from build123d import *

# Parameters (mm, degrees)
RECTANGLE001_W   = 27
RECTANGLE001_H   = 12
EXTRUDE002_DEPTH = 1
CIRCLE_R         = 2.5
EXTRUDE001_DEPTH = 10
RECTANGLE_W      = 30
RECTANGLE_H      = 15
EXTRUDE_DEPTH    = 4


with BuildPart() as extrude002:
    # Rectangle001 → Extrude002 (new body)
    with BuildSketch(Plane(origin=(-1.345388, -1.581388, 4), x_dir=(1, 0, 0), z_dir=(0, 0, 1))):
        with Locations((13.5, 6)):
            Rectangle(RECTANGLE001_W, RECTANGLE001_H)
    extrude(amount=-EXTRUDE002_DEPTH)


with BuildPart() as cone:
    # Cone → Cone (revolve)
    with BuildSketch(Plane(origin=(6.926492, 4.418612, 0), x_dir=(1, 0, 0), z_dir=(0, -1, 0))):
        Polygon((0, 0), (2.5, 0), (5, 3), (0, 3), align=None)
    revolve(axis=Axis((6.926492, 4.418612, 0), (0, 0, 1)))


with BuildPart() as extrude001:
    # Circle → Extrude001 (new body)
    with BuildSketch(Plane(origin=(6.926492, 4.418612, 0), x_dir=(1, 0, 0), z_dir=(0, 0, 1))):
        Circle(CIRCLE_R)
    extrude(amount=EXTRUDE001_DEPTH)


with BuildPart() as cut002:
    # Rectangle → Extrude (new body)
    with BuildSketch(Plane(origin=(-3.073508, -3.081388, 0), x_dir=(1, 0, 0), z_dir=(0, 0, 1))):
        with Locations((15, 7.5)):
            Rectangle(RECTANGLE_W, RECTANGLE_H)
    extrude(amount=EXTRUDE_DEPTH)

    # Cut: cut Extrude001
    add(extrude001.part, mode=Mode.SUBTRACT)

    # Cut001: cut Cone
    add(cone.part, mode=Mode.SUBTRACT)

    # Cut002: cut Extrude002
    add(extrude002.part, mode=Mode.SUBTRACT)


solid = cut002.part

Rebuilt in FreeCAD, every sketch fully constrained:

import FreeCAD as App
import Part
import Sketcher
from FreeCAD import Vector


def add_polygon(sketch, points):
    """Adds a closed chain of lines whose ends are joined by coincident constraints."""
    first, n = sketch.GeometryCount, len(points)
    for a, b in zip(points, points[1:] + points[:1]):
        sketch.addGeometry(Part.LineSegment(App.Vector(*a, 0), App.Vector(*b, 0)), False)
    for i in range(n):
        sketch.addConstraint(Sketcher.Constraint("Coincident", first + i, 2, first + (i + 1) % n, 1))

doc = App.newDocument("Part")
params = doc.addObject("Spreadsheet::Sheet", "Params")
for row, (alias, value) in enumerate([
    ("sketch1_width", "27 mm"),
    ("sketch1_height", "12 mm"),
    ("pad1_length", "1 mm"),
    ("sketch2_width", "5 mm"),
    ("sketch2_height", "3 mm"),
    ("sketch2_width2", "2.5 mm"),
    ("revolution_angle", "360 deg"),
    ("sketch3_diameter", "5 mm"),
    ("pad2_length", "10 mm"),
    ("sketch4_width", "30 mm"),
    ("sketch4_height", "15 mm"),
    ("pad3_length", "4 mm"),
], start=1):
    params.set(f"A{row}", alias)
    params.set(f"B{row}", "=" + value)
    params.setAlias(f"B{row}", alias)

body = doc.addObject("PartDesign::Body", "Body")

sketch1 = body.newObject("Sketcher::SketchObject", "Sketch")
sketch1.AttachmentSupport = (doc.getObject("XY_Plane"), [""])
sketch1.MapMode = "FlatFace"
sketch1.AttachmentOffset = App.Placement(Vector(0, 0, 4), App.Rotation())
add_polygon(sketch1, [(-1, 10), (-1, -2), (26, -2), (26, 10)])
sketch1.addConstraint(Sketcher.Constraint("Vertical", 0))
sketch1.addConstraint(Sketcher.Constraint("Horizontal", 1))
sketch1.addConstraint(Sketcher.Constraint("Vertical", 2))
sketch1.addConstraint(Sketcher.Constraint("Horizontal", 3))
sketch1.addConstraint(Sketcher.Constraint("DistanceX", 1, 1, 1, 2, 27.0))
sketch1.addConstraint(Sketcher.Constraint("DistanceY", 0, 2, 0, 1, 12.0))
sketch1.addConstraint(Sketcher.Constraint("DistanceX", -1, 1, 1, 2, 25.654612))
sketch1.addConstraint(Sketcher.Constraint("DistanceY", 0, 2, -1, 1, 1.581388))
sketch1.setExpression("Constraints[8]", "Params.sketch1_width")
sketch1.setExpression("Constraints[9]", "Params.sketch1_height")
pad1 = body.newObject("PartDesign::Pad", "Pad")
pad1.Profile = sketch1
pad1.setExpression("Length", "Params.pad1_length")
pad1.Reversed = True
body2 = doc.addObject("PartDesign::Body", "Body001")

sketch2 = body2.newObject("Sketcher::SketchObject", "Sketch001")
sketch2.AttachmentSupport = (doc.getObject("XZ_Plane001"), [""])
sketch2.MapMode = "FlatFace"
sketch2.AttachmentOffset = App.Placement(Vector(0, 0, -4.418612), App.Rotation())
add_polygon(sketch2, [(6.9, 0), (9.4, 0), (11.9, 3), (6.9, 3)])
sketch2.addGeometry(Part.LineSegment(Vector(6.9, 0, 0), Vector(6.9, 3, 0)), True)
sketch2.addConstraint(Sketcher.Constraint("Horizontal", 0))
sketch2.addConstraint(Sketcher.Constraint("Horizontal", 2))
sketch2.addConstraint(Sketcher.Constraint("Vertical", 3))
sketch2.addConstraint(Sketcher.Constraint("Vertical", 4))
sketch2.addConstraint(Sketcher.Constraint("Coincident", 4, 1, 3, 2))
sketch2.addConstraint(Sketcher.Constraint("PointOnObject", 0, 2, -1))
sketch2.addConstraint(Sketcher.Constraint("Horizontal", 1, 2, 4, 2))
sketch2.addConstraint(Sketcher.Constraint("DistanceX", 2, 2, 2, 1, 5.0))
sketch2.addConstraint(Sketcher.Constraint("DistanceY", 3, 2, 3, 1, 3.0))
sketch2.addConstraint(Sketcher.Constraint("DistanceX", 0, 1, 0, 2, 2.5))
sketch2.addConstraint(Sketcher.Constraint("DistanceX", -1, 1, 2, 2, 6.926492))
sketch2.setExpression("Constraints[11]", "Params.sketch2_width")
sketch2.setExpression("Constraints[12]", "Params.sketch2_height")
sketch2.setExpression("Constraints[13]", "Params.sketch2_width2")
revolution = body2.newObject("PartDesign::Revolution", "Revolution")
revolution.Profile = sketch2
revolution.ReferenceAxis = (sketch2, ["Axis0"])
revolution.setExpression("Angle", "Params.revolution_angle")
body3 = doc.addObject("PartDesign::Body", "Body002")

sketch3 = body3.newObject("Sketcher::SketchObject", "Sketch002")
sketch3.AttachmentSupport = (doc.getObject("XY_Plane002"), [""])
sketch3.MapMode = "FlatFace"
sketch3.addGeometry(Part.Circle(Vector(6.9, 4.4, 0), Vector(0, 0, 1), 2.5), False)
sketch3.addConstraint(Sketcher.Constraint("Diameter", 0, 5.0))
sketch3.addConstraint(Sketcher.Constraint("DistanceX", -1, 1, 0, 3, 6.926492))
sketch3.addConstraint(Sketcher.Constraint("DistanceY", -1, 1, 0, 3, 4.418612))
sketch3.setExpression("Constraints[0]", "Params.sketch3_diameter")
pad2 = body3.newObject("PartDesign::Pad", "Pad001")
pad2.Profile = sketch3
pad2.setExpression("Length", "Params.pad2_length")
body4 = doc.addObject("PartDesign::Body", "Body003")

sketch4 = body4.newObject("Sketcher::SketchObject", "Sketch003")
sketch4.AttachmentSupport = (doc.getObject("XY_Plane003"), [""])
sketch4.MapMode = "FlatFace"
add_polygon(sketch4, [(-3, 12), (-3, -3), (27, -3), (27, 12)])
sketch4.addConstraint(Sketcher.Constraint("Vertical", 0))
sketch4.addConstraint(Sketcher.Constraint("Horizontal", 1))
sketch4.addConstraint(Sketcher.Constraint("Vertical", 2))
sketch4.addConstraint(Sketcher.Constraint("Horizontal", 3))
sketch4.addConstraint(Sketcher.Constraint("DistanceX", 1, 1, 1, 2, 30.0))
sketch4.addConstraint(Sketcher.Constraint("DistanceY", 0, 2, 0, 1, 15.0))
sketch4.addConstraint(Sketcher.Constraint("DistanceY", 0, 2, -1, 1, 3.081388))
sketch4.addConstraint(Sketcher.Constraint("DistanceX", -1, 1, 1, 2, 26.926492))
sketch4.setExpression("Constraints[8]", "Params.sketch4_width")
sketch4.setExpression("Constraints[9]", "Params.sketch4_height")
pad3 = body4.newObject("PartDesign::Pad", "Pad002")
pad3.Profile = sketch4
pad3.setExpression("Length", "Params.pad3_length")
doc.recompute()

boolean = body4.newObject("PartDesign::Boolean", "Boolean")
boolean.Type = "Cut"
boolean.addObjects([body3])
doc.recompute()

boolean2 = body4.newObject("PartDesign::Boolean", "Boolean001")
boolean2.Type = "Cut"
boolean2.addObjects([body2])
doc.recompute()

boolean3 = body4.newObject("PartDesign::Boolean", "Boolean002")
boolean3.Type = "Cut"
boolean3.addObjects([body])

doc.recompute()
